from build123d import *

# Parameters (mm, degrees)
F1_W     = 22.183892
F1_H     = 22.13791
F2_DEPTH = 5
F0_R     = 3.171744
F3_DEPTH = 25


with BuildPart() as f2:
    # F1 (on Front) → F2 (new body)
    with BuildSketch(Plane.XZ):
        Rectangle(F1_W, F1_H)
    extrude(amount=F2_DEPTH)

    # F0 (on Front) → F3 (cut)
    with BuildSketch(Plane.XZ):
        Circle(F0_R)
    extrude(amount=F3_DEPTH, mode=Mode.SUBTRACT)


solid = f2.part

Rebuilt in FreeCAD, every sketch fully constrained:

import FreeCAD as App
import Part
import Sketcher
Q = App.Units.Quantity


def add_polygon(sketch, points):
    """Adds a closed chain of lines whose ends are joined by coincident constraints."""
    first, n = sketch.GeometryCount, len(points)
    for a, b in zip(points, points[1:] + points[:1]):
        sketch.addGeometry(Part.LineSegment(App.Vector(*a, 0), App.Vector(*b, 0)), False)
    for i in range(n):
        sketch.addConstraint(Sketcher.Constraint("Coincident", first + i, 2, first + (i + 1) % n, 1))

doc = App.newDocument("Part")
body = doc.addObject("PartDesign::Body", "Body")

# Sketch on XZ plane
sketch1 = body.newObject("Sketcher::SketchObject", "Sketch")
sketch1.AttachmentSupport = (doc.getObject("XZ_Plane"), [""])
sketch1.MapMode = "FlatFace"
add_polygon(sketch1, [(-11, 11), (-11, -11), (11, -11), (11, 11)])  # lines 0-3
sketch1.addConstraint(Sketcher.Constraint("Vertical", 0))
sketch1.addConstraint(Sketcher.Constraint("Horizontal", 1))
sketch1.addConstraint(Sketcher.Constraint("Vertical", 2))
sketch1.addConstraint(Sketcher.Constraint("Horizontal", 3))
sketch1.addConstraint(Sketcher.Constraint("Symmetric", 0, 2, 2, 2, -1, 1))
sketch1.addConstraint(Sketcher.Constraint("DistanceX", 1, 1, 1, 2, Q("22.183892 mm")))
sketch1.addConstraint(Sketcher.Constraint("DistanceY", 0, 2, 0, 1, Q("22.13791 mm")))
pad1 = body.newObject("PartDesign::Pad", "Pad")
pad1.Profile = sketch1
pad1.Length = 5

# Sketch on XZ plane
sketch2 = body.newObject("Sketcher::SketchObject", "Sketch001")
sketch2.AttachmentSupport = (doc.getObject("XZ_Plane"), [""])
sketch2.MapMode = "FlatFace"
sketch2.addGeometry(Part.Circle(App.Vector(0, 0, 0), App.Vector(0, 0, 1), 3.2), False)
sketch2.addConstraint(Sketcher.Constraint("Coincident", 0, 3, -1, 1))
sketch2.addConstraint(Sketcher.Constraint("Diameter", 0, Q("6.343488 mm")))
pocket1 = body.newObject("PartDesign::Pocket", "Pocket")
pocket1.Profile = sketch2
pocket1.Length = 25
pocket1.Reversed = True

doc.recompute()
